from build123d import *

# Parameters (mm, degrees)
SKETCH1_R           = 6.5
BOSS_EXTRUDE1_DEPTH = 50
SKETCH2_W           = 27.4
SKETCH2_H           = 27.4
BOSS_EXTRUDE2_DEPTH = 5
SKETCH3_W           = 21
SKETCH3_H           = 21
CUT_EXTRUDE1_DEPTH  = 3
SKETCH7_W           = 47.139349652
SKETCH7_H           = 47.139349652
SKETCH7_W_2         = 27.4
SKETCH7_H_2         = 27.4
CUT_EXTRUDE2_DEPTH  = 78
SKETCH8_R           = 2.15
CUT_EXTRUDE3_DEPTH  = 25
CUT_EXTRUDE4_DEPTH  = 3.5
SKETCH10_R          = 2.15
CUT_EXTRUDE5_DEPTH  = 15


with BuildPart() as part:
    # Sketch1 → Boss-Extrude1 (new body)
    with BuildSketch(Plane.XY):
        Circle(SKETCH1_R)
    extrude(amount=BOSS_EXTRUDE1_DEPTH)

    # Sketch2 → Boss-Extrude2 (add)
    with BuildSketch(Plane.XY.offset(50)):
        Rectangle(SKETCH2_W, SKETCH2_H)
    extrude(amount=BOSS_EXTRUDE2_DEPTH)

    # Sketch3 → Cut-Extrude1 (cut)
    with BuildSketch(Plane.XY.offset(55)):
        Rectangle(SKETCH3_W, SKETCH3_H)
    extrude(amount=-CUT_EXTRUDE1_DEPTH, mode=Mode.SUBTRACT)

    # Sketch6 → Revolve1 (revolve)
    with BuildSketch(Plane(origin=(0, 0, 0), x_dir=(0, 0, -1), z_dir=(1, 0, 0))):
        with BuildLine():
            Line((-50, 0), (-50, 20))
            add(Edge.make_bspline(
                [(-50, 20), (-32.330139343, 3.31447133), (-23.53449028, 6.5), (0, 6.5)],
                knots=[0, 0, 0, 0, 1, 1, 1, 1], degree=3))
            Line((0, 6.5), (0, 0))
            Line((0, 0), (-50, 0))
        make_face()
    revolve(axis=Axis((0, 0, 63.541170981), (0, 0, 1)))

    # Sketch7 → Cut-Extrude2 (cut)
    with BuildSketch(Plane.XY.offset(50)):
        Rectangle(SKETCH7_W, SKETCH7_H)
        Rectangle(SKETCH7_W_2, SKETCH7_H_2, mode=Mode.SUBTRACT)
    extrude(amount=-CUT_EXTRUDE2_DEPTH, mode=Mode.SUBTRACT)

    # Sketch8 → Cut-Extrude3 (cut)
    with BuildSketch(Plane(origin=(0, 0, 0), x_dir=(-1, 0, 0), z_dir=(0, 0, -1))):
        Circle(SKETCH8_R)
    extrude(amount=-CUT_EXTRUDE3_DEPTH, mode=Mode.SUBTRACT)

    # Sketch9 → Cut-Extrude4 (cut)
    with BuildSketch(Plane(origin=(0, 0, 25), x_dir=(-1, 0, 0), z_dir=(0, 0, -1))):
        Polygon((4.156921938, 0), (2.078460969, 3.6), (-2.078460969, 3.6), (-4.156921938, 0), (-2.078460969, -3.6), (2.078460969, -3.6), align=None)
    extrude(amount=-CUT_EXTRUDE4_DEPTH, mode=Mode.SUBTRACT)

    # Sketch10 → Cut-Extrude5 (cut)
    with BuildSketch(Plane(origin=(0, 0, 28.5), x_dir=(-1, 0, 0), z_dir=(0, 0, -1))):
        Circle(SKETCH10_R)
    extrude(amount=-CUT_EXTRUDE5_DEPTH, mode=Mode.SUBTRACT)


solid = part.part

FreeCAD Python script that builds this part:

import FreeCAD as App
import Part
import Sketcher
from FreeCAD import Vector
Q = App.Units.Quantity

doc = App.newDocument("Part")
body = doc.addObject("PartDesign::Body", "Body")

# Sketch on XY plane
sketch1 = doc.addObject("Sketcher::SketchObject", "Sketch")
body.addObject(sketch1)
sketch1.AttachmentSupport = (doc.XY_Plane, [""])
sketch1.MapMode = "FlatFace"
sketch1.addGeometry(Part.Circle(Vector(0, 0, 0), Vector(0, 0, 1), 6.5), False)
sketch1.addConstraint([
    Sketcher.Constraint("Coincident", 0, 3, -1, 1),
    Sketcher.Constraint("Diameter", 0, Q("13 mm")),
])
pad1 = doc.addObject("PartDesign::Pad", "Pad")
body.addObject(pad1)
pad1.Profile = sketch1
pad1.Length = 50

# Sketch on XY plane
sketch2 = doc.addObject("Sketcher::SketchObject", "Sketch001")
body.addObject(sketch2)
sketch2.AttachmentSupport = (doc.XY_Plane, [""])
sketch2.MapMode = "FlatFace"
sketch2.AttachmentOffset = App.Placement(Vector(0, 0, 50), App.Rotation())
sketch2.addGeometry([
    Part.LineSegment(Vector(-13.7, 13.7, 0), Vector(-13.7, -13.7, 0)),
    Part.LineSegment(Vector(-13.7, -13.7, 0), Vector(13.7, -13.7, 0)),
    Part.LineSegment(Vector(13.7, -13.7, 0), Vector(13.7, 13.7, 0)),
    Part.LineSegment(Vector(13.7, 13.7, 0), Vector(-13.7, 13.7, 0)),
], False)
sketch2.addConstraint([
    Sketcher.Constraint("Coincident", 0, 2, 1, 1),
    Sketcher.Constraint("Coincident", 1, 2, 2, 1),
    Sketcher.Constraint("Coincident", 2, 2, 3, 1),
    Sketcher.Constraint("Coincident", 3, 2, 0, 1),
    Sketcher.Constraint("Vertical", 0),
    Sketcher.Constraint("Horizontal", 1),
    Sketcher.Constraint("Vertical", 2),
    Sketcher.Constraint("Horizontal", 3),
    Sketcher.Constraint("Symmetric", 0, 2, 2, 2, -1, 1),
    Sketcher.Constraint("Equal", 3, 0),
    Sketcher.Constraint("DistanceX", 1, 1, 1, 2, Q("27.4 mm")),
])
pad2 = doc.addObject("PartDesign::Pad", "Pad001")
body.addObject(pad2)
pad2.Profile = sketch2
pad2.Length = 5

# Sketch on XY plane
sketch3 = doc.addObject("Sketcher::SketchObject", "Sketch002")
body.addObject(sketch3)
sketch3.AttachmentSupport = (doc.XY_Plane, [""])
sketch3.MapMode = "FlatFace"
sketch3.AttachmentOffset = App.Placement(Vector(0, 0, 55), App.Rotation())
sketch3.addGeometry([
    Part.LineSegment(Vector(-10.5, 10.5, 0), Vector(-10.5, -10.5, 0)),
    Part.LineSegment(Vector(-10.5, -10.5, 0), Vector(10.5, -10.5, 0)),
    Part.LineSegment(Vector(10.5, -10.5, 0), Vector(10.5, 10.5, 0)),
    Part.LineSegment(Vector(10.5, 10.5, 0), Vector(-10.5, 10.5, 0)),
], False)
sketch3.addConstraint([
    Sketcher.Constraint("Coincident", 0, 2, 1, 1),
    Sketcher.Constraint("Coincident", 1, 2, 2, 1),
    Sketcher.Constraint("Coincident", 2, 2, 3, 1),
    Sketcher.Constraint("Coincident", 3, 2, 0, 1),
    Sketcher.Constraint("Vertical", 0),
    Sketcher.Constraint("Horizontal", 1),
    Sketcher.Constraint("Vertical", 2),
    Sketcher.Constraint("Horizontal", 3),
    Sketcher.Constraint("Symmetric", 0, 2, 2, 2, -1, 1),
    Sketcher.Constraint("Equal", 3, 0),
    Sketcher.Constraint("DistanceX", 1, 1, 1, 2, Q("21 mm")),
])
pocket1 = doc.addObject("PartDesign::Pocket", "Pocket")
body.addObject(pocket1)
pocket1.Profile = sketch3
pocket1.Length = 3

# Sketch on YZ plane
sketch4 = doc.addObject("Sketcher::SketchObject", "Sketch003")
body.addObject(sketch4)
sketch4.AttachmentSupport = (doc.YZ_Plane, [""])
sketch4.MapMode = "FlatFace"
sketch4.addGeometry([
    Part.LineSegment(Vector(20, 50, 0), Vector(0, 50, 0)),
    Part.LineSegment(Vector(0, 50, 0), Vector(0, 0, 0)),
    Part.LineSegment(Vector(0, 0, 0), Vector(6.5, 0, 0)),
    Part.BSplineCurve([Vector(20, 50, 0), Vector(3.314471, 32.330139, 0), Vector(6.5, 23.53449, 0), Vector(6.5, 0, 0)], [4, 4], [0, 1], False, 3, [1, 1, 1, 1], False),
], False)
sketch4.addConstraint([
    Sketcher.Constraint("Block", 3),
    Sketcher.Constraint("Coincident", 0, 2, 1, 1),
    Sketcher.Constraint("Coincident", 1, 2, 2, 1),
    Sketcher.Constraint("Coincident", 2, 2, 3, 2),
    Sketcher.Constraint("Coincident", 3, 1, 0, 1),
    Sketcher.Constraint("Horizontal", 0),
    Sketcher.Constraint("Vertical", 1),
    Sketcher.Constraint("Horizontal", 2),
    Sketcher.Constraint("PointOnObject", 0, 2, -2),
])
revolution = doc.addObject("PartDesign::Revolution", "Revolution")
body.addObject(revolution)
revolution.Profile = sketch4
revolution.ReferenceAxis = (sketch4, ["V_Axis"])
revolution.Angle = 360

# Sketch on XY plane
sketch5 = doc.addObject("Sketcher::SketchObject", "Sketch004")
body.addObject(sketch5)
sketch5.AttachmentSupport = (doc.XY_Plane, [""])
sketch5.MapMode = "FlatFace"
sketch5.AttachmentOffset = App.Placement(Vector(0, 0, 50), App.Rotation())
sketch5.addGeometry([
    Part.LineSegment(Vector(-23.569675, 23.569675, 0), Vector(-23.569675, -23.569675, 0)),  # 0
    Part.LineSegment(Vector(-23.569675, -23.569675, 0), Vector(23.569675, -23.569675, 0)),  # 1
    Part.LineSegment(Vector(23.569675, -23.569675, 0), Vector(23.569675, 23.569675, 0)),  # 2
    Part.LineSegment(Vector(23.569675, 23.569675, 0), Vector(-23.569675, 23.569675, 0)),  # 3
    Part.LineSegment(Vector(13.7, -13.7, 0), Vector(-13.7, -13.7, 0)),  # 4
    Part.LineSegment(Vector(-13.7, -13.7, 0), Vector(-13.7, 13.7, 0)),  # 5
    Part.LineSegment(Vector(-13.7, 13.7, 0), Vector(13.7, 13.7, 0)),  # 6
    Part.LineSegment(Vector(13.7, 13.7, 0), Vector(13.7, -13.7, 0)),  # 7
], False)
sketch5.addConstraint([
    Sketcher.Constraint("Coincident", 0, 2, 1, 1),
    Sketcher.Constraint("Coincident", 1, 2, 2, 1),
    Sketcher.Constraint("Coincident", 2, 2, 3, 1),
    Sketcher.Constraint("Coincident", 3, 2, 0, 1),
    Sketcher.Constraint("Coincident", 4, 2, 5, 1),
    Sketcher.Constraint("Coincident", 5, 2, 6, 1),
    Sketcher.Constraint("Coincident", 6, 2, 7, 1),
    Sketcher.Constraint("Coincident", 7, 2, 4, 1),
    Sketcher.Constraint("Vertical", 0),
    Sketcher.Constraint("Horizontal", 1),
    Sketcher.Constraint("Vertical", 2),
    Sketcher.Constraint("Horizontal", 3),
    Sketcher.Constraint("Horizontal", 4),
    Sketcher.Constraint("Vertical", 5),
    Sketcher.Constraint("Horizontal", 6),
    Sketcher.Constraint("Vertical", 7),
    Sketcher.Constraint("Symmetric", 0, 2, 2, 2, -1, 1),
    Sketcher.Constraint("Symmetric", 4, 2, 6, 2, -1, 1),
    Sketcher.Constraint("Equal", 3, 0),
    Sketcher.Constraint("Equal", 6, 5),
    Sketcher.Constraint("DistanceX", 4, 2, 4, 1, Q("27.4 mm")),
    Sketcher.Constraint("DistanceX", 1, 1, 1, 2, Q("47.13935 mm")),
])
pocket2 = doc.addObject("PartDesign::Pocket", "Pocket001")
body.addObject(pocket2)
pocket2.Profile = sketch5
pocket2.Length = 78

# Sketch on XY plane
sketch6 = doc.addObject("Sketcher::SketchObject", "Sketch005")
body.addObject(sketch6)
sketch6.AttachmentSupport = (doc.XY_Plane, [""])
sketch6.MapMode = "FlatFace"
sketch6.addGeometry(Part.Circle(Vector(0, 0, 0), Vector(0, 0, 1), 2.15), False)
sketch6.addConstraint([
    Sketcher.Constraint("Coincident", 0, 3, -1, 1),
    Sketcher.Constraint("Diameter", 0, Q("4.3 mm")),
])
pocket3 = doc.addObject("PartDesign::Pocket", "Pocket002")
body.addObject(pocket3)
pocket3.Profile = sketch6
pocket3.Length = 25
pocket3.Reversed = True

# Sketch on XY plane
sketch7 = doc.addObject("Sketcher::SketchObject", "Sketch006")
body.addObject(sketch7)
sketch7.AttachmentSupport = (doc.XY_Plane, [""])
sketch7.MapMode = "FlatFace"
sketch7.AttachmentOffset = App.Placement(Vector(0, 0, 25), App.Rotation())
sketch7.addGeometry([
    Part.LineSegment(Vector(-4.156922, 0, 0), Vector(-2.078461, 3.6, 0)),  # 0
    Part.LineSegment(Vector(-2.078461, 3.6, 0), Vector(2.078461, 3.6, 0)),  # 1
    Part.LineSegment(Vector(2.078461, 3.6, 0), Vector(4.156922, 0, 0)),  # 2
    Part.LineSegment(Vector(4.156922, 0, 0), Vector(2.078461, -3.6, 0)),  # 3
    Part.LineSegment(Vector(2.078461, -3.6, 0), Vector(-2.078461, -3.6, 0)),  # 4
    Part.LineSegment(Vector(-2.078461, -3.6, 0), Vector(-4.156922, 0, 0)),  # 5
], False)
sketch7.addConstraint([
    Sketcher.Constraint("Coincident", 0, 2, 1, 1),
    Sketcher.Constraint("Coincident", 1, 2, 2, 1),
    Sketcher.Constraint("Coincident", 2, 2, 3, 1),
    Sketcher.Constraint("Coincident", 3, 2, 4, 1),
    Sketcher.Constraint("Coincident", 4, 2, 5, 1),
    Sketcher.Constraint("Coincident", 5, 2, 0, 1),
    Sketcher.Constraint("Horizontal", 1),
    Sketcher.Constraint("Horizontal", 4),
    Sketcher.Constraint("Symmetric", 0, 2, 3, 2, -1, 1),
    Sketcher.Constraint("Symmetric", 2, 2, 5, 2, -1, 1),
    Sketcher.Constraint("PointOnObject", 2, 2, -1),
    Sketcher.Constraint("Parallel", 2, 5),
    Sketcher.Constraint("Vertical", 1, 2, 3, 2),
    Sketcher.Constraint("Angle", 0, Q("60 deg")),
    Sketcher.Constraint("DistanceY", -1, 1, 0, 2, Q("3.6 mm")),
    Sketcher.Constraint("DistanceX", 1, 1, 1, 2, Q("4.156922 mm")),
])
pocket4 = doc.addObject("PartDesign::Pocket", "Pocket003")
body.addObject(pocket4)
pocket4.Profile = sketch7
pocket4.Length = 3.5
pocket4.Reversed = True

# Sketch on XY plane
sketch8 = doc.addObject("Sketcher::SketchObject", "Sketch007")
body.addObject(sketch8)
sketch8.AttachmentSupport = (doc.XY_Plane, [""])
sketch8.MapMode = "FlatFace"
sketch8.AttachmentOffset = App.Placement(Vector(0, 0, 28.5), App.Rotation())
sketch8.addGeometry(Part.Circle(Vector(0, 0, 0), Vector(0, 0, 1), 2.15), False)
sketch8.addConstraint([
    Sketcher.Constraint("Coincident", 0, 3, -1, 1),
    Sketcher.Constraint("Diameter", 0, Q("4.3 mm")),
])
pocket5 = doc.addObject("PartDesign::Pocket", "Pocket004")
body.addObject(pocket5)
pocket5.Profile = sketch8
pocket5.Length = 15
pocket5.Reversed = True

doc.recompute()
